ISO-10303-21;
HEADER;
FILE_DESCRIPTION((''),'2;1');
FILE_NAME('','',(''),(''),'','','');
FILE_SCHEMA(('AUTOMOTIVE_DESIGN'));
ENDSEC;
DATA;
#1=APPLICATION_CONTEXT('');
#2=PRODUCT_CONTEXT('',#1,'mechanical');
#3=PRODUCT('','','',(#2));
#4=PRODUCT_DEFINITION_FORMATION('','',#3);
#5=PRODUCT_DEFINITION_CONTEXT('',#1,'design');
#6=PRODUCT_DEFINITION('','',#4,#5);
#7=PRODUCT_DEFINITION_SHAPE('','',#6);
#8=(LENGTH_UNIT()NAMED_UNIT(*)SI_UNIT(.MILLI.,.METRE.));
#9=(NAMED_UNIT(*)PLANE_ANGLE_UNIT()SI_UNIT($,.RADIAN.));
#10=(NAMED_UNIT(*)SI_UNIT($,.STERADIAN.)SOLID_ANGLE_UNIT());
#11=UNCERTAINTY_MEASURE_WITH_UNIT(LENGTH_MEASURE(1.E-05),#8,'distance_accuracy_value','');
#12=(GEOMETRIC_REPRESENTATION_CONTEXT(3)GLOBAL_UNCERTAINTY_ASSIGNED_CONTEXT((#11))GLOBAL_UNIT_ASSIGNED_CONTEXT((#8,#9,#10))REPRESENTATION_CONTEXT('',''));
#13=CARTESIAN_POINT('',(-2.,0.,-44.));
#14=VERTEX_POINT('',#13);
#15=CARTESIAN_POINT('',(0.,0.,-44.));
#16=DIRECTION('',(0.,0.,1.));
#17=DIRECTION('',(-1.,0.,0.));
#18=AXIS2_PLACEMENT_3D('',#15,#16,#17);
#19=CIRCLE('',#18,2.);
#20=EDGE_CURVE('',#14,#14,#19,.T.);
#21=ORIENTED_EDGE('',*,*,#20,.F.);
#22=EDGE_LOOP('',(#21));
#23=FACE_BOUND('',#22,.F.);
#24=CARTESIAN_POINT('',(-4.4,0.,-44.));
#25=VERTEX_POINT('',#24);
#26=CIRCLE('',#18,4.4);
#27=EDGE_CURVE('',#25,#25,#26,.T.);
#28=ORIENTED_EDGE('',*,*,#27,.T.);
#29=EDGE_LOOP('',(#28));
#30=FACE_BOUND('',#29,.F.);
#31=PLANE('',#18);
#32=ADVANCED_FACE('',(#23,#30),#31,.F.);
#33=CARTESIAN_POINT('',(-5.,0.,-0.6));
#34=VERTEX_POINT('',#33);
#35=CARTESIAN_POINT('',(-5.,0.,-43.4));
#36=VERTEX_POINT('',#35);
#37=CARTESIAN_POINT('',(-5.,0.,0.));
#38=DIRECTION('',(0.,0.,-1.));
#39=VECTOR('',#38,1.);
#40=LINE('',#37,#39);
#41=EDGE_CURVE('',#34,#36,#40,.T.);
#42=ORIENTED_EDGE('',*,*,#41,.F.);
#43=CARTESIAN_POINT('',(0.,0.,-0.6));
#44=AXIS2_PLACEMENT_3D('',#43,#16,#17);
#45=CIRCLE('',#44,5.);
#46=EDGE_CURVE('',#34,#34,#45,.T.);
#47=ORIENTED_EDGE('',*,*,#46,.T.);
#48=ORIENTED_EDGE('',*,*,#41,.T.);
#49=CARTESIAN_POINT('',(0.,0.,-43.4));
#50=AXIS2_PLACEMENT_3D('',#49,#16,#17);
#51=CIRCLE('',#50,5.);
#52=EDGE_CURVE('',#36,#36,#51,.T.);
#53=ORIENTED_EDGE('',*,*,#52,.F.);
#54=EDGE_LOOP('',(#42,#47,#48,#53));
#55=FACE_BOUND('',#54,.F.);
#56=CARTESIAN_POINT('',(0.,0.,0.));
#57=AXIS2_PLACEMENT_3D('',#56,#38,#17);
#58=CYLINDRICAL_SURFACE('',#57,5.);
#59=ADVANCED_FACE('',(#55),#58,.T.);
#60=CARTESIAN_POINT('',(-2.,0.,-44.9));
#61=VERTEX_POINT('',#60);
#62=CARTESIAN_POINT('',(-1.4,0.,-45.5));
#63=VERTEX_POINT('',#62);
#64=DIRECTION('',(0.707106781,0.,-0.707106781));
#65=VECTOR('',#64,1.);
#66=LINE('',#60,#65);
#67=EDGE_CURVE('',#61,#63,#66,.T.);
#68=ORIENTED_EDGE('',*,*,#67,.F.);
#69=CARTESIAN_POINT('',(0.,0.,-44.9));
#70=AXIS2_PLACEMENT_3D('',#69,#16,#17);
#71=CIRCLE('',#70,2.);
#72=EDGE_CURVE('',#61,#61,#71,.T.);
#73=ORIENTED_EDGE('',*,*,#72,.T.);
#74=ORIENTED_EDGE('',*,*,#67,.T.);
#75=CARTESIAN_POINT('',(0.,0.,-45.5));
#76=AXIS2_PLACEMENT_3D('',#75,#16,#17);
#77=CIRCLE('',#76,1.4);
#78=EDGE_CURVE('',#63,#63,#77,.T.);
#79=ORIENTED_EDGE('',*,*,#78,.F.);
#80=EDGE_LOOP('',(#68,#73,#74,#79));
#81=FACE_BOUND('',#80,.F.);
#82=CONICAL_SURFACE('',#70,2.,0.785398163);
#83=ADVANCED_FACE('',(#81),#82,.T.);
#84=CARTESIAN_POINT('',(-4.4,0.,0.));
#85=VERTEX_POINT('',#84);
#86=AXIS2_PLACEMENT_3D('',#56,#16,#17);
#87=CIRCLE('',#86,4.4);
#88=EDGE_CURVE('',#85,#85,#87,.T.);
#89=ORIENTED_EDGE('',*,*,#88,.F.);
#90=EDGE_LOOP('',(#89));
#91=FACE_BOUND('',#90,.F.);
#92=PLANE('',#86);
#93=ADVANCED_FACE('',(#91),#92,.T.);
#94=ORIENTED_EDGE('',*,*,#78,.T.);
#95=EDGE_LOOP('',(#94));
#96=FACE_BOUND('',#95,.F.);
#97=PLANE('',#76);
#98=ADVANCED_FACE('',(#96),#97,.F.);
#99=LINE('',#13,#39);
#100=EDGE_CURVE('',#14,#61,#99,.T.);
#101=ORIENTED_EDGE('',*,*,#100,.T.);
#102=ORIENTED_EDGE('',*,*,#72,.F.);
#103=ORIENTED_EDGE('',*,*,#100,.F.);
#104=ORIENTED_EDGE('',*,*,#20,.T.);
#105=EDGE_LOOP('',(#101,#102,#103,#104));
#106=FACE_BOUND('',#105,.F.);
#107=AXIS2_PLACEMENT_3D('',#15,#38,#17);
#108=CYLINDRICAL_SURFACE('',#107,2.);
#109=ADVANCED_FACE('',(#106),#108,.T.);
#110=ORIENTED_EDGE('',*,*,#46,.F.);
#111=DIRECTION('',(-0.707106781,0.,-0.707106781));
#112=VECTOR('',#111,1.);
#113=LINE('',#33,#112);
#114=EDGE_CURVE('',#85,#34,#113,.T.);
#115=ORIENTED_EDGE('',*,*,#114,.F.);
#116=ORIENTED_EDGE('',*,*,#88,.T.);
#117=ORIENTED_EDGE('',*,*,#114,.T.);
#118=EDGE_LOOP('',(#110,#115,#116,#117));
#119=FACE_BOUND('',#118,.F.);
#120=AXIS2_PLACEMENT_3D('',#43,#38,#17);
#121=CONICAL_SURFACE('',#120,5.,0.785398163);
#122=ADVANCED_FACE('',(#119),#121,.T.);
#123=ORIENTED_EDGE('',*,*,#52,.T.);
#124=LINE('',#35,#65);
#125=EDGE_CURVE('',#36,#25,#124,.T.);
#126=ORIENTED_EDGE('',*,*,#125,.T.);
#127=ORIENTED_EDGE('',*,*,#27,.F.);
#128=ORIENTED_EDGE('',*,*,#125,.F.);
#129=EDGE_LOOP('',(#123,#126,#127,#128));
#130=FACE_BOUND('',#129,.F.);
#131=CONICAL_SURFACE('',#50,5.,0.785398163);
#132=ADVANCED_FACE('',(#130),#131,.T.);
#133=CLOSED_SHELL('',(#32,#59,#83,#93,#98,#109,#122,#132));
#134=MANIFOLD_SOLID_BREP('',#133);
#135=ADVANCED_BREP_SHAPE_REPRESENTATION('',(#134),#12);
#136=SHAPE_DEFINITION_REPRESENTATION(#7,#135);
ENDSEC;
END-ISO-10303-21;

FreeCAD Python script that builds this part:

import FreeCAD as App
import Part
import Sketcher
from FreeCAD import Vector


def edges_at(feature, points):
    """Names of the edges that pass closest to the given points."""
    edges = feature.Shape.Edges
    near = lambda p: min(range(len(edges)), key=lambda i: edges[i].distToShape(Part.Vertex(*p))[0])
    return sorted({f"Edge{near(p) + 1}" for p in points})

doc = App.newDocument("Part")
body = doc.addObject("PartDesign::Body", "Body")

sketch1 = doc.addObject("Sketcher::SketchObject", "Sketch")
body.addObject(sketch1)
sketch1.AttachmentSupport = (doc.XZ_Plane, [""])
sketch1.MapMode = "FlatFace"
sketch1.addGeometry(Part.LineSegment(Vector(-5, 0, 0), Vector(0, 0, 0)), False)
sketch1.addGeometry(Part.LineSegment(Vector(0, 0, 0), Vector(0, -45.5, 0)), False)
sketch1.addGeometry(Part.LineSegment(Vector(0, -45.5, 0), Vector(-2, -45.5, 0)), False)
sketch1.addGeometry(Part.LineSegment(Vector(-2, -45.5, 0), Vector(-2, -44, 0)), False)
sketch1.addGeometry(Part.LineSegment(Vector(-2, -44, 0), Vector(-5, -44, 0)), False)
sketch1.addGeometry(Part.LineSegment(Vector(-5, -44, 0), Vector(-5, 0, 0)), False)
sketch1.addConstraint(Sketcher.Constraint("Coincident", 0, 2, 1, 1))
sketch1.addConstraint(Sketcher.Constraint("Coincident", 1, 2, 2, 1))
sketch1.addConstraint(Sketcher.Constraint("Coincident", 2, 2, 3, 1))
sketch1.addConstraint(Sketcher.Constraint("Coincident", 3, 2, 4, 1))
sketch1.addConstraint(Sketcher.Constraint("Coincident", 4, 2, 5, 1))
sketch1.addConstraint(Sketcher.Constraint("Coincident", 5, 2, 0, 1))
sketch1.addConstraint(Sketcher.Constraint("Horizontal", 0))
sketch1.addConstraint(Sketcher.Constraint("Vertical", 1))
sketch1.addConstraint(Sketcher.Constraint("Horizontal", 2))
sketch1.addConstraint(Sketcher.Constraint("Vertical", 3))
sketch1.addConstraint(Sketcher.Constraint("Horizontal", 4))
sketch1.addConstraint(Sketcher.Constraint("Vertical", 5))
sketch1.addConstraint(Sketcher.Constraint("Coincident", 0, 2, -1, 1))
sketch1.addConstraint(Sketcher.Constraint("DistanceX", 0, 1, 0, 2, 5.0))
sketch1.addConstraint(Sketcher.Constraint("DistanceX", 4, 2, 4, 1, 3.0))
sketch1.addConstraint(Sketcher.Constraint("DistanceY", 5, 1, 5, 2, 44.0))
sketch1.addConstraint(Sketcher.Constraint("DistanceY", 3, 1, 3, 2, 1.5))
revolution = doc.addObject("PartDesign::Revolution", "Revolution")
body.addObject(revolution)
revolution.Profile = sketch1
revolution.ReferenceAxis = (sketch1, ["V_Axis"])
revolution.Angle = 360
doc.recompute()

chamfer = doc.addObject("PartDesign::Chamfer", "Chamfer")
body.addObject(chamfer)
chamfer.Base = (revolution, edges_at(revolution, [(5, 0, 0), (5, 0, -44), (2, 0, -45.5)]))
chamfer.Size = 0.6

doc.recompute()
